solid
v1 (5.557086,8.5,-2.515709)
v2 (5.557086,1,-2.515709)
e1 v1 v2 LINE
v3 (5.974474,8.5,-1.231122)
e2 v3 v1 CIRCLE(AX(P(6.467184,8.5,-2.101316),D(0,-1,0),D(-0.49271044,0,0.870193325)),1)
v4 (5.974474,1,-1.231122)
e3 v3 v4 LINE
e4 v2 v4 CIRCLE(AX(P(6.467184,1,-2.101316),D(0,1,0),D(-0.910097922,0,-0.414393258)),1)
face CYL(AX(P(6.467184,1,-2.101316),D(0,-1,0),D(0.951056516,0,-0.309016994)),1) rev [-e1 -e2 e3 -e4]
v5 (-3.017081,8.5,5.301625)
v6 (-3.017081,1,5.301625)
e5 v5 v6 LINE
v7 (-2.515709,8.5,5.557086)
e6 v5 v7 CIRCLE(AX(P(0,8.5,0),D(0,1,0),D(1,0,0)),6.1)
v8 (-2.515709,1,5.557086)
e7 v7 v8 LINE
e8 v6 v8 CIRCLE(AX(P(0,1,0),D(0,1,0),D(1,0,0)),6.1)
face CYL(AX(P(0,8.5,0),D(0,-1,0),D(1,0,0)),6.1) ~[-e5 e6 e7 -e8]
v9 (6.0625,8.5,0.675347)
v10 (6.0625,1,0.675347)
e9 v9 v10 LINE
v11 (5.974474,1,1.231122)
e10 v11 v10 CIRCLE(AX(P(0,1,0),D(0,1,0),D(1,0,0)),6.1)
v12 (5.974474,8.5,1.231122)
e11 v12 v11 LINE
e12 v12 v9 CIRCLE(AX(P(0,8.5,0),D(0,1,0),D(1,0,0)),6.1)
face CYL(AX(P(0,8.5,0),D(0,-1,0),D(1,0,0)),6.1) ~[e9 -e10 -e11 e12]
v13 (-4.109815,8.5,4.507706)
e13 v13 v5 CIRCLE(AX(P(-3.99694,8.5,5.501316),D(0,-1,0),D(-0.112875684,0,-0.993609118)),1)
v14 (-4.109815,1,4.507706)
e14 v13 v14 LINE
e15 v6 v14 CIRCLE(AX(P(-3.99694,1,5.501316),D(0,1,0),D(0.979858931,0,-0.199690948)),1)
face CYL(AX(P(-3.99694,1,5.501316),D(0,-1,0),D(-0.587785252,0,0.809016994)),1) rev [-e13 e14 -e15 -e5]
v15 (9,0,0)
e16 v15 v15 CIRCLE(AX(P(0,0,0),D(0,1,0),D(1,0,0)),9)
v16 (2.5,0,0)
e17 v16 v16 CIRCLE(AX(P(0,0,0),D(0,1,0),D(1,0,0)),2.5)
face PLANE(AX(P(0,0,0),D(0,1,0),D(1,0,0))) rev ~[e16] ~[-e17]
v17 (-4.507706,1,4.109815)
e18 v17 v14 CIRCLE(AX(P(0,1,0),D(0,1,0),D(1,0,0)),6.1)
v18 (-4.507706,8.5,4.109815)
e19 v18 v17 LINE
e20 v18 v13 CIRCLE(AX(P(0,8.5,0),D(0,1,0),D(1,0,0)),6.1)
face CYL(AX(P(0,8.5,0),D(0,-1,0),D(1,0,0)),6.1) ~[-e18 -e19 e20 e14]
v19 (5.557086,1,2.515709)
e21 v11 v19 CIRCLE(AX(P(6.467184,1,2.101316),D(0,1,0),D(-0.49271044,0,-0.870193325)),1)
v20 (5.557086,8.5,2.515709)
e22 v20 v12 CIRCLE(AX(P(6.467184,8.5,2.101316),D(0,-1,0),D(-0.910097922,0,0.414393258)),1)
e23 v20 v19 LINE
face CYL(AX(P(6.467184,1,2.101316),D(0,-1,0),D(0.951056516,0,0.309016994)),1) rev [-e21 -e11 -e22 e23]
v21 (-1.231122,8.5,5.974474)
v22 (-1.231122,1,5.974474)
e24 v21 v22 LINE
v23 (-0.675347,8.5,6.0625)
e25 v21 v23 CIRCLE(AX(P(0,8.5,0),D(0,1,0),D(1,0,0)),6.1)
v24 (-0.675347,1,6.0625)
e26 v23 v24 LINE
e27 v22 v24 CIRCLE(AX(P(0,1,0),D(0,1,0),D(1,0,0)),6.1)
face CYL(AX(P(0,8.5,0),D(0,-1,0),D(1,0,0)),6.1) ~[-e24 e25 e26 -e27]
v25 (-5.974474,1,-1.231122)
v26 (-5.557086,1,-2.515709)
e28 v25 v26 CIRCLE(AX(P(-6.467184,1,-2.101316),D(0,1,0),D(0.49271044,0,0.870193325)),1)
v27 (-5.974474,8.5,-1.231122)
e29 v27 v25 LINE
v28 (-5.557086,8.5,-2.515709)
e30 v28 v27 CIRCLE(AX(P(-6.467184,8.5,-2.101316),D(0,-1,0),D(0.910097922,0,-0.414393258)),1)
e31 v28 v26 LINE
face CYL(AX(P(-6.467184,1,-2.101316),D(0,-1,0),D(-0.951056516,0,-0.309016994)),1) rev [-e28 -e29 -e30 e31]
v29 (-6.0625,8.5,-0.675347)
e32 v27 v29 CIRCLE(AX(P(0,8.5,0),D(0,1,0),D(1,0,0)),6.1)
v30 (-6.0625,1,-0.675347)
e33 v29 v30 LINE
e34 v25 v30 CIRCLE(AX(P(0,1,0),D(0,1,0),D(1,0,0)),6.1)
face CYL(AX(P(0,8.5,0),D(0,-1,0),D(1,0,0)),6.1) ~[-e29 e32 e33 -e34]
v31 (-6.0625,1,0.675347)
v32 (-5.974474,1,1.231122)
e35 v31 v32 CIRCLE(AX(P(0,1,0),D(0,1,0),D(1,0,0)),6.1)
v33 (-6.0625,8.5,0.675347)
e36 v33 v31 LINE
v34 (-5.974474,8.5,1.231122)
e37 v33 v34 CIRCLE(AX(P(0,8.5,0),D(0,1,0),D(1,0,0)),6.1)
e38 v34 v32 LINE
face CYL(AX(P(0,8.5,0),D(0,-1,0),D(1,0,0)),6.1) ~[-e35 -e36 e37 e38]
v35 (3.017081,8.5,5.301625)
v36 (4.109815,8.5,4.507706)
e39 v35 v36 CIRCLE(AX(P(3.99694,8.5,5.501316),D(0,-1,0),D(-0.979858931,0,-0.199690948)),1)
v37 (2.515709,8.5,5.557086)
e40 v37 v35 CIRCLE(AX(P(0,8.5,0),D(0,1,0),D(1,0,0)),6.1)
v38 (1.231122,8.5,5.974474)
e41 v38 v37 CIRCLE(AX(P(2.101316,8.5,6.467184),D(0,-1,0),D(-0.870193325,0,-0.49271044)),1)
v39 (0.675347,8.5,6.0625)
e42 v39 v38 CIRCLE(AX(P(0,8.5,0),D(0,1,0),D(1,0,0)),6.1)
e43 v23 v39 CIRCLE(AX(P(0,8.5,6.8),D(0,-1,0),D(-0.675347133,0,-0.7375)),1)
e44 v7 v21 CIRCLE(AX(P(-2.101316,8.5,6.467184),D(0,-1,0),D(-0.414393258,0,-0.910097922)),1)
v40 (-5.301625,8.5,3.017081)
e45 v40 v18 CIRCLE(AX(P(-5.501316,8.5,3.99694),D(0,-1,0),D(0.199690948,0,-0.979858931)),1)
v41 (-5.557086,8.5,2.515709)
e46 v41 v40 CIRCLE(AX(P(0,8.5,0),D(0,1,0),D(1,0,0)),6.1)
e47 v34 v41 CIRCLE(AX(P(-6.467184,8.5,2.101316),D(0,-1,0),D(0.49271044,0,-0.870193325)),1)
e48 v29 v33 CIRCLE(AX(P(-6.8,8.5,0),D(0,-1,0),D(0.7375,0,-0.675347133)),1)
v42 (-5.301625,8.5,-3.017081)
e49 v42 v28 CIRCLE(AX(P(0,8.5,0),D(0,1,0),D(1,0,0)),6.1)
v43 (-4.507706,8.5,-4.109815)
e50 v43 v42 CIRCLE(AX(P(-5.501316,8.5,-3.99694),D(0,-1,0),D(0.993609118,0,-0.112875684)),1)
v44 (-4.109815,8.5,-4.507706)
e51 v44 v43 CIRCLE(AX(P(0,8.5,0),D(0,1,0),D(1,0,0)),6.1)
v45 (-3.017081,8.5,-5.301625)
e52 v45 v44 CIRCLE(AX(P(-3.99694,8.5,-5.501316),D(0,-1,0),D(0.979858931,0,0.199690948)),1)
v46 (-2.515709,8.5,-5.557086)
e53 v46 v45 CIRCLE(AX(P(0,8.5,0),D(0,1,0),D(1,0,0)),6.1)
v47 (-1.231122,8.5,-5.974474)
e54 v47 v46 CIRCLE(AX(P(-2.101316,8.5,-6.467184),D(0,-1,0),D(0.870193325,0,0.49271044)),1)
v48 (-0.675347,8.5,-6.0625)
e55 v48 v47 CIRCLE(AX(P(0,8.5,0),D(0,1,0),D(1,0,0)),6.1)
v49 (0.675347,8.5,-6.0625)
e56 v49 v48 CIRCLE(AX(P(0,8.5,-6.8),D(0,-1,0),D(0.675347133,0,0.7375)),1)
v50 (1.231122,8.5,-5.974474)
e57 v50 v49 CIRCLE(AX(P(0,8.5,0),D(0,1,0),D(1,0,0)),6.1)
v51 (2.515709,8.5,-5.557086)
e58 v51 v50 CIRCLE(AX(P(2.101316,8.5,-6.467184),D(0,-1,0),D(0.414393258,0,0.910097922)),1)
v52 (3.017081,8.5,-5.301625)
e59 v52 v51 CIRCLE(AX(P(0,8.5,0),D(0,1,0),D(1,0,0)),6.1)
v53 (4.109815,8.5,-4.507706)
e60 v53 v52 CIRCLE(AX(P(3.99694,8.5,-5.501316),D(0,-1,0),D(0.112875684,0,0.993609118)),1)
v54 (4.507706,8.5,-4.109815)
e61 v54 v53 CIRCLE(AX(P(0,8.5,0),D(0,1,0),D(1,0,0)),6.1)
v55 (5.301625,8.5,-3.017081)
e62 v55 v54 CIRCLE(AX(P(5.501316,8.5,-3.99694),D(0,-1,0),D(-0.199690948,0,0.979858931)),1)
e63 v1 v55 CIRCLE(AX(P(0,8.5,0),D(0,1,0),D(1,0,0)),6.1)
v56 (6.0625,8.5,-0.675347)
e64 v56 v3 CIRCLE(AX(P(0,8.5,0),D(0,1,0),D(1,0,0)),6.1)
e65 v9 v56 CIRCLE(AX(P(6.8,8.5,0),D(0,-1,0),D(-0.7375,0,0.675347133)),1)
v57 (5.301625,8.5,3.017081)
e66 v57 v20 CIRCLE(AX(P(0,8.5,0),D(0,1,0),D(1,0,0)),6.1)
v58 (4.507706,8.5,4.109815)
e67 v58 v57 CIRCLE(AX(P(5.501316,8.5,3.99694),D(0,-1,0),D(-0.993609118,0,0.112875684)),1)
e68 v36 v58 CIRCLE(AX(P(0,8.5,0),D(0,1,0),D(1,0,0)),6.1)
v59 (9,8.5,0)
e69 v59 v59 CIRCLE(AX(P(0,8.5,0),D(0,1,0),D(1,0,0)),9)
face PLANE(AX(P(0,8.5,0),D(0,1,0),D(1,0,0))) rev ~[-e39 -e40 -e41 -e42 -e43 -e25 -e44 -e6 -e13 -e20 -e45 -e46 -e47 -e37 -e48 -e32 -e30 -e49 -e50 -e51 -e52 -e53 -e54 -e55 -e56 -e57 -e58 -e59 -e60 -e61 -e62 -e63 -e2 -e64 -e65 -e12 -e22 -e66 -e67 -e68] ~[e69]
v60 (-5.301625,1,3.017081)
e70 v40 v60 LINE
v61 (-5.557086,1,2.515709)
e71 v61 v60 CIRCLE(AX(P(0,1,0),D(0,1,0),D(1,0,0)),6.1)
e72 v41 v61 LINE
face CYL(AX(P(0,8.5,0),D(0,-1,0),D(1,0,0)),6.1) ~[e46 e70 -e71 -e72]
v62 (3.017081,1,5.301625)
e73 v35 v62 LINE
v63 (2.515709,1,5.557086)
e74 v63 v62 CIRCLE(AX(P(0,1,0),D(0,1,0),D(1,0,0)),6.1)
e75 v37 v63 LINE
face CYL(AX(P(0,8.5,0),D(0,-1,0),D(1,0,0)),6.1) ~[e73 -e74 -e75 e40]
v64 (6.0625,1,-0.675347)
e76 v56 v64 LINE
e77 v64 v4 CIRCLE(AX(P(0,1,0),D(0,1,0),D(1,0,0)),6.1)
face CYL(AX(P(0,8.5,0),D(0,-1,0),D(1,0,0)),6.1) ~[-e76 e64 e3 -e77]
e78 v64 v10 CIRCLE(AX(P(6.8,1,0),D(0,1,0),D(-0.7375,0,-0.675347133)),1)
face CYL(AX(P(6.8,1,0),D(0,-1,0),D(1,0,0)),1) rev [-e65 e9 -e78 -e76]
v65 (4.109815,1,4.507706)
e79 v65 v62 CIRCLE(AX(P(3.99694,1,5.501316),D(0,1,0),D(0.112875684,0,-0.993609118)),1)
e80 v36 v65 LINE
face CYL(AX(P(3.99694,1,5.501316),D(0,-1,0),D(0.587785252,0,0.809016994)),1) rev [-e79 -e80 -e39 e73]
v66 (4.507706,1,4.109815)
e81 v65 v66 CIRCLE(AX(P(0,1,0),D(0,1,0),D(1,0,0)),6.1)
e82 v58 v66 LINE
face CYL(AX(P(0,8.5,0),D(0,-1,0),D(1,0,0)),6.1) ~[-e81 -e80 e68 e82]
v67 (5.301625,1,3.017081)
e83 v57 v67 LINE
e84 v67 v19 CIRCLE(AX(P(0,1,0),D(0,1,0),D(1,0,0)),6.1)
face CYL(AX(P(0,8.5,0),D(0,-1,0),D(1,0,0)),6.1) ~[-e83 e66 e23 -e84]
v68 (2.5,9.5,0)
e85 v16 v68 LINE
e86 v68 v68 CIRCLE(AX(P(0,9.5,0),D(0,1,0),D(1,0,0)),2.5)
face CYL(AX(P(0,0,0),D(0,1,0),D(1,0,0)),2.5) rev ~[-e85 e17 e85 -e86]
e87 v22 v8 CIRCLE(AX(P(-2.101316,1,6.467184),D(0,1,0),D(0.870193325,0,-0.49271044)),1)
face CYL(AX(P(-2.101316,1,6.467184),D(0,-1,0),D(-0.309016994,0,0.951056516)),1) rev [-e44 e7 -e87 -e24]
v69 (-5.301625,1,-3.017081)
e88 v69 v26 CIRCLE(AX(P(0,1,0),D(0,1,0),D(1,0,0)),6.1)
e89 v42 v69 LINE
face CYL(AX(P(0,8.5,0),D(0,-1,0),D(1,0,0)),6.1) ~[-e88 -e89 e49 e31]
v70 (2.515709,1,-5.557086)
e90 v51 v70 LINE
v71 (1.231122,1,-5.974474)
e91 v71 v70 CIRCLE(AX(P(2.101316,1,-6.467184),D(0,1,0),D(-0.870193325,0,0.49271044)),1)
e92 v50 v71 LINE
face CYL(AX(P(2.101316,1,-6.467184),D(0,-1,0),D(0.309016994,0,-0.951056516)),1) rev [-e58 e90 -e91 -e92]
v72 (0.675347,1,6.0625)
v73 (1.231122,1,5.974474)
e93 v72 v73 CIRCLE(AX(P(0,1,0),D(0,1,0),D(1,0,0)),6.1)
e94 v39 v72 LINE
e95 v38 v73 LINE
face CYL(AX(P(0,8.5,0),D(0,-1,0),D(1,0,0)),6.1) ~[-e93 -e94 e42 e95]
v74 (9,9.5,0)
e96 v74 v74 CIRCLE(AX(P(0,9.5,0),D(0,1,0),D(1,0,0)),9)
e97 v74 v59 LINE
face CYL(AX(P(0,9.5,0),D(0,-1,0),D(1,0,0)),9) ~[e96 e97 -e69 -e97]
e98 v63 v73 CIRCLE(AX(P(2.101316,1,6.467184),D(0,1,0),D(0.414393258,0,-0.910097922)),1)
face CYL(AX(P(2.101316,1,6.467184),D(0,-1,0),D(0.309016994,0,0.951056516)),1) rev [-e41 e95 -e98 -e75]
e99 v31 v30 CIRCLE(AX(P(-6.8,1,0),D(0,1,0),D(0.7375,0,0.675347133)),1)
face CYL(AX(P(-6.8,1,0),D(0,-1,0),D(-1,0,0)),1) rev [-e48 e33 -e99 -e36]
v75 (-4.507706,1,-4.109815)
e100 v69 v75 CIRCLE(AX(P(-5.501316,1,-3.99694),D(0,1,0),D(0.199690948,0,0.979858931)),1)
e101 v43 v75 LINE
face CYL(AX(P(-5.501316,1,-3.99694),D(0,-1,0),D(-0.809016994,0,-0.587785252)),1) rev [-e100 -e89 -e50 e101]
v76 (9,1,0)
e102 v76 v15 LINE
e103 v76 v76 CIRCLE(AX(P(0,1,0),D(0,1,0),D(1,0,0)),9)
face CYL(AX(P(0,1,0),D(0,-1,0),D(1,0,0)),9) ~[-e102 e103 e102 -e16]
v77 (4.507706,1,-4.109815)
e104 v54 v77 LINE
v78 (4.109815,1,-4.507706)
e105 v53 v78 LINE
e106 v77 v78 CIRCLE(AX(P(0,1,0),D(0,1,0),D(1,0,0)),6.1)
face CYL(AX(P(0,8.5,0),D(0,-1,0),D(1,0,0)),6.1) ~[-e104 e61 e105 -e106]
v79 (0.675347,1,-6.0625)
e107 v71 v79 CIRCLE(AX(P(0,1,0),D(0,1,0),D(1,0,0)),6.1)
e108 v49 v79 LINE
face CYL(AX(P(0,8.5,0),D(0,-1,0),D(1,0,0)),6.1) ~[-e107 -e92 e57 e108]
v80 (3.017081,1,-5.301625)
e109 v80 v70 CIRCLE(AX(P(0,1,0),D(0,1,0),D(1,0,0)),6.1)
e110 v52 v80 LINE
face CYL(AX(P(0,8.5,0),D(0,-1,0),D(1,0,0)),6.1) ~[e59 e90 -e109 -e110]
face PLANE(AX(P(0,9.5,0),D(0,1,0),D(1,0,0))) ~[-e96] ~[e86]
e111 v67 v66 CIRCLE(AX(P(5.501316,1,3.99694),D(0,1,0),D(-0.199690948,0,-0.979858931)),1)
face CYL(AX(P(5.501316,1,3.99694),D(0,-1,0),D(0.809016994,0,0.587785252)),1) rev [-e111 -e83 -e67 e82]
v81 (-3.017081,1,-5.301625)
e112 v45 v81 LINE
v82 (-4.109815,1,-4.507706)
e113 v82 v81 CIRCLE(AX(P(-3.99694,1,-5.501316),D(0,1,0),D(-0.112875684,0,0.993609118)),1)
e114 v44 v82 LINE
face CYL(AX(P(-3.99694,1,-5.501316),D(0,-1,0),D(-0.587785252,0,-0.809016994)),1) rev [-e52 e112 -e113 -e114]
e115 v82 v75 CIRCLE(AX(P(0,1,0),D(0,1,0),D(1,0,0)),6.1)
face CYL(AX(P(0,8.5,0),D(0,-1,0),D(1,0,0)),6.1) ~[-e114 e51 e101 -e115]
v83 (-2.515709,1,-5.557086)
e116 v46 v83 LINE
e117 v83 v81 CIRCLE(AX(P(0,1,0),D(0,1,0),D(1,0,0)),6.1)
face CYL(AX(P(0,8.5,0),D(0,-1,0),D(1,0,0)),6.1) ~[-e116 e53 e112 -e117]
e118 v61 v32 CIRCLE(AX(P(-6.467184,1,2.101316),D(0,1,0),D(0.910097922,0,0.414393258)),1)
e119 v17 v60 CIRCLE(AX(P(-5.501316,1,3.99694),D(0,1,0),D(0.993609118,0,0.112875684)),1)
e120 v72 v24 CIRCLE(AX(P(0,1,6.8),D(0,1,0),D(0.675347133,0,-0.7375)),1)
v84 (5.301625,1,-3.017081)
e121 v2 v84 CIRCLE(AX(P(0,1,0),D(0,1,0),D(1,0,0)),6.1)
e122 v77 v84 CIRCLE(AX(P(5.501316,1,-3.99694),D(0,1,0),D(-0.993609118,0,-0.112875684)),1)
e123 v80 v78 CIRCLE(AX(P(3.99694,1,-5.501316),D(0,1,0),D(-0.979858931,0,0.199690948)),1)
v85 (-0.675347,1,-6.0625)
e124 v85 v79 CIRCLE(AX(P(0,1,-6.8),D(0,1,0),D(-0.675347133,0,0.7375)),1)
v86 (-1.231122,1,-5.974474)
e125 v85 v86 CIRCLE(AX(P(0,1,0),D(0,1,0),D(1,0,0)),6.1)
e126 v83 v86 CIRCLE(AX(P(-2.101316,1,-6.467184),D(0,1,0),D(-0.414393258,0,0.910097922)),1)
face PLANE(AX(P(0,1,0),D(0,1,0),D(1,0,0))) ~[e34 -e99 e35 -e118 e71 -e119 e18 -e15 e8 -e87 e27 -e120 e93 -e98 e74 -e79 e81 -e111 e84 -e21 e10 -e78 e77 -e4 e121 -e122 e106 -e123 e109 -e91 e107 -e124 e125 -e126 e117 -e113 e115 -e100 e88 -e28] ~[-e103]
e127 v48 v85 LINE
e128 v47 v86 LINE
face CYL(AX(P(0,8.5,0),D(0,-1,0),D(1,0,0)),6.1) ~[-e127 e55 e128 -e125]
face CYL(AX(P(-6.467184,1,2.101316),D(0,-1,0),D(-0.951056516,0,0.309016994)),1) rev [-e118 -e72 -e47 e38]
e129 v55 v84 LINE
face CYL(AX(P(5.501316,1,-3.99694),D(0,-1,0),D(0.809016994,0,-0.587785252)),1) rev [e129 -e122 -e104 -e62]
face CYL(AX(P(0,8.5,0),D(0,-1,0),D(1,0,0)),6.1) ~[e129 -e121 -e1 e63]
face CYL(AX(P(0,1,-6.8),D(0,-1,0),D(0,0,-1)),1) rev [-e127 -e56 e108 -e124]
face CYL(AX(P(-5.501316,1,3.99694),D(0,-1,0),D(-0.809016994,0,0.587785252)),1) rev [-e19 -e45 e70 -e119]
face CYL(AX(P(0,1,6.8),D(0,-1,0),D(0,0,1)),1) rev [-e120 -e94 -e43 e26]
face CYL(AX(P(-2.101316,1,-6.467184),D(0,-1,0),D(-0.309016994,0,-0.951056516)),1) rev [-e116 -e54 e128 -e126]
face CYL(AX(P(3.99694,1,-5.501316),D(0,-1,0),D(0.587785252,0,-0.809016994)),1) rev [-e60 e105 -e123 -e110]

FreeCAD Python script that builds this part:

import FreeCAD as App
import Part
import Sketcher
Q = App.Units.Quantity

doc = App.newDocument("Part")
body = doc.addObject("PartDesign::Body", "Body")

sketch1 = body.newObject("Sketcher::SketchObject", "Sketch")
sketch1.AttachmentSupport = (doc.getObject("XY_Plane"), [""])
sketch1.MapMode = "FlatFace"
sketch1.addGeometry([
    Part.LineSegment(App.Vector(9, 9.5, 0), App.Vector(2.5, 9.5, 0)),
    Part.LineSegment(App.Vector(2.5, 9.5, 0), App.Vector(2.5, 0, 0)),
    Part.LineSegment(App.Vector(2.5, 0, 0), App.Vector(9, 0, 0)),
    Part.LineSegment(App.Vector(9, 0, 0), App.Vector(9, 1, 0)),
    Part.LineSegment(App.Vector(9, 1, 0), App.Vector(6.1, 1, 0)),
    Part.LineSegment(App.Vector(6.1, 1, 0), App.Vector(6.1, 8.5, 0)),
    Part.LineSegment(App.Vector(6.1, 8.5, 0), App.Vector(9, 8.5, 0)),
    Part.LineSegment(App.Vector(9, 8.5, 0), App.Vector(9, 9.5, 0)),
], False)
sketch1.addConstraint([
    Sketcher.Constraint("Coincident", 0, 2, 1, 1),
    Sketcher.Constraint("Coincident", 1, 2, 2, 1),
    Sketcher.Constraint("Coincident", 2, 2, 3, 1),
    Sketcher.Constraint("Coincident", 3, 2, 4, 1),
    Sketcher.Constraint("Coincident", 4, 2, 5, 1),
    Sketcher.Constraint("Coincident", 5, 2, 6, 1),
    Sketcher.Constraint("Coincident", 6, 2, 7, 1),
    Sketcher.Constraint("Coincident", 7, 2, 0, 1),
    Sketcher.Constraint("Horizontal", 0),
    Sketcher.Constraint("Vertical", 1),
    Sketcher.Constraint("Horizontal", 2),
    Sketcher.Constraint("Vertical", 3),
    Sketcher.Constraint("Horizontal", 4),
    Sketcher.Constraint("Vertical", 5),
    Sketcher.Constraint("Horizontal", 6),
    Sketcher.Constraint("Vertical", 7),
    Sketcher.Constraint("PointOnObject", 1, 2, -1),
    Sketcher.Constraint("Vertical", 3, 2, 6, 2),
    Sketcher.Constraint("Equal", 3, 7),
    Sketcher.Constraint("DistanceY", 3, 1, 3, 2, Q("1 mm")),
    Sketcher.Constraint("DistanceY", 5, 1, 5, 2, Q("7.5 mm")),
    Sketcher.Constraint("DistanceX", -1, 1, 2, 2, Q("9 mm")),
    Sketcher.Constraint("DistanceX", -1, 1, 0, 2, Q("2.5 mm")),
    Sketcher.Constraint("DistanceX", -1, 1, 4, 2, Q("6.1 mm")),
])
revolution = body.newObject("PartDesign::Revolution", "Revolution")
revolution.Profile = sketch1
revolution.ReferenceAxis = (sketch1, ["V_Axis"])
revolution.Angle = 360

sketch2 = body.newObject("Sketcher::SketchObject", "Sketch001")
sketch2.AttachmentSupport = (doc.getObject("XZ_Plane"), [""])
sketch2.MapMode = "FlatFace"
sketch2.AttachmentOffset = App.Placement(App.Vector(0, 0, -1), App.Rotation())
sketch2.addGeometry(Part.Circle(App.Vector(6.8, 0, 0), App.Vector(0, 0, 1), 1), False)
sketch2.addConstraint([
    Sketcher.Constraint("PointOnObject", 0, 3, -1),
    Sketcher.Constraint("Diameter", 0, Q("2 mm")),
    Sketcher.Constraint("DistanceX", -1, 1, 0, 3, Q("6.8 mm")),
])
pocket1 = body.newObject("PartDesign::Pocket", "Pocket")
pocket1.Profile = sketch2
pocket1.Length = 7.5
doc.recompute()

polarpattern = body.newObject("PartDesign::PolarPattern", "PolarPattern")
polarpattern.Originals = [pocket1]
polarpattern.Axis = (doc.getObject("Y_Axis"), [""])
polarpattern.Angle = 360
polarpattern.Occurrences = 20
body.Tip = polarpattern

doc.recompute()
